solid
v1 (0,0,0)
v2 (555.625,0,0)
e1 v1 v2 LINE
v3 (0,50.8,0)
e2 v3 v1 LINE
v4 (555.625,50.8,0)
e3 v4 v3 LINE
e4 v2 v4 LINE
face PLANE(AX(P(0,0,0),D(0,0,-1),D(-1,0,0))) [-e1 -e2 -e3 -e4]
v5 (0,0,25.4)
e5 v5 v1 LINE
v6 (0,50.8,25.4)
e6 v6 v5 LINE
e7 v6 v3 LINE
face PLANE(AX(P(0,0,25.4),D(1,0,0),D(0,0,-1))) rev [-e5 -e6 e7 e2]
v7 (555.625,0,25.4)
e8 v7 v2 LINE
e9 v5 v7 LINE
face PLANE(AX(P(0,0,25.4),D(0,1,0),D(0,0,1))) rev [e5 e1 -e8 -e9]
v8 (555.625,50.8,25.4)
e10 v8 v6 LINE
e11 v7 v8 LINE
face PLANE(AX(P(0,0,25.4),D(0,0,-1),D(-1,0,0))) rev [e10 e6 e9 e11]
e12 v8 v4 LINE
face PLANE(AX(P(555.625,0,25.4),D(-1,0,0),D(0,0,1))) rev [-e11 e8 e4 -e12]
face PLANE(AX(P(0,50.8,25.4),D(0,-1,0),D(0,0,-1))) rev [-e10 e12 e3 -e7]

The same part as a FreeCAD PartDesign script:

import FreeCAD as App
import Part
import Sketcher
from FreeCAD import Vector
Q = App.Units.Quantity


def add_polygon(sketch, points):
    """Adds a closed chain of lines whose ends are joined by coincident constraints."""
    first, n = sketch.GeometryCount, len(points)
    for a, b in zip(points, points[1:] + points[:1]):
        sketch.addGeometry(Part.LineSegment(App.Vector(*a, 0), App.Vector(*b, 0)), False)
    for i in range(n):
        sketch.addConstraint(Sketcher.Constraint("Coincident", first + i, 2, first + (i + 1) % n, 1))

doc = App.newDocument("Part")
params = doc.addObject("Spreadsheet::Sheet", "Params")
for row, (alias, value) in enumerate([
    ("sketch1_height", "2 in"),
    ("sketch1_width", "21.875 in"),
    ("pad1_length", "1 in"),
], start=1):
    params.set(f"A{row}", alias)
    params.set(f"B{row}", "=" + value)
    params.setAlias(f"B{row}", alias)

body = doc.addObject("PartDesign::Body", "Body")

sketch1 = doc.addObject("Sketcher::SketchObject", "Sketch")
body.addObject(sketch1)
sketch1.AttachmentSupport = (doc.XY_Plane, [""])
sketch1.MapMode = "FlatFace"
add_polygon(sketch1, [(0, 50.8), (0, 0), (555.625, 0), (555.625, 50.8)])
sketch1.addConstraint([
    Sketcher.Constraint("Vertical", 0),
    Sketcher.Constraint("Horizontal", 1),
    Sketcher.Constraint("Vertical", 2),
    Sketcher.Constraint("Horizontal", 3),
    Sketcher.Constraint("Coincident", 0, 2, -1, 1),
    Sketcher.Constraint("DistanceY", 0, 2, 0, 1, Q("2 in")),
    Sketcher.Constraint("DistanceX", 1, 1, 1, 2, Q("21.875 in")),
])
sketch1.setExpression("Constraints[9]", "Params.sketch1_height")
sketch1.setExpression("Constraints[10]", "Params.sketch1_width")
pad1 = doc.addObject("PartDesign::Pad", "Pad")
body.addObject(pad1)
pad1.Profile = sketch1
pad1.setExpression("Length", "Params.pad1_length")

doc.recompute()
